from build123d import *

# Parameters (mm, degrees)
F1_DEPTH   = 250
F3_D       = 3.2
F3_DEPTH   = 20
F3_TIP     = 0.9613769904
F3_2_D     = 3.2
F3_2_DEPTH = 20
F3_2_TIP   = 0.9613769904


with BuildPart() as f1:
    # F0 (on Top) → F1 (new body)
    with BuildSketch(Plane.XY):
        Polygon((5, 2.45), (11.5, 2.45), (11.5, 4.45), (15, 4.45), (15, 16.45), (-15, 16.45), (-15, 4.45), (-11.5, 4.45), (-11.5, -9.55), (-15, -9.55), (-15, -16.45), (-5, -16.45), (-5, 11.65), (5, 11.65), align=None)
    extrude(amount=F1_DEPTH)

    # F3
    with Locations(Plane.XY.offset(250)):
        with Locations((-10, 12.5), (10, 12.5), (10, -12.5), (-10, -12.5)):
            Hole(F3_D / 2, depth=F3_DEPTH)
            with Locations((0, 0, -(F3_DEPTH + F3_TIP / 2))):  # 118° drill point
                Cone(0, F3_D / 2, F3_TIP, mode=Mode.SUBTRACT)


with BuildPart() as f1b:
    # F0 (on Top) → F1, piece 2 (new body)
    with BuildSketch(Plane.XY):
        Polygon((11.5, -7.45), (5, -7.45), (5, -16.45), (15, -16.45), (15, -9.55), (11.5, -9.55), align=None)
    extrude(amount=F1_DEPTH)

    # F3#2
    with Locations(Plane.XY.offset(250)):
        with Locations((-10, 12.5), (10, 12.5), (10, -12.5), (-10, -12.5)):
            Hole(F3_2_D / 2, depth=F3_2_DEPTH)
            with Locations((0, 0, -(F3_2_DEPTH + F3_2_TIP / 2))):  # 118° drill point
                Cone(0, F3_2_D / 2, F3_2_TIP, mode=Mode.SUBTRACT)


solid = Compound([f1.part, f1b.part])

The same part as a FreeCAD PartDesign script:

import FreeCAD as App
import Part
import Sketcher
from FreeCAD import Vector

doc = App.newDocument("Part")
body = doc.addObject("PartDesign::Body", "Body")

# Sketch on XY plane
sketch1 = body.newObject("Sketcher::SketchObject", "Sketch")
sketch1.AttachmentSupport = (doc.getObject("XY_Plane"), [""])
sketch1.MapMode = "FlatFace"
sketch1.addGeometry(Part.LineSegment(Vector(5, 2.5, 0), Vector(11.5, 2.5, 0)), False)
sketch1.addGeometry(Part.LineSegment(Vector(11.5, 2.5, 0), Vector(11.5, 4.5, 0)), False)
sketch1.addGeometry(Part.LineSegment(Vector(11.5, 4.5, 0), Vector(15, 4.5, 0)), False)
sketch1.addGeometry(Part.LineSegment(Vector(15, 4.5, 0), Vector(15, 16.4, 0)), False)
sketch1.addGeometry(Part.LineSegment(Vector(15, 16.4, 0), Vector(-15, 16.4, 0)), False)
sketch1.addGeometry(Part.LineSegment(Vector(-15, 16.4, 0), Vector(-15, 4.5, 0)), False)
sketch1.addGeometry(Part.LineSegment(Vector(-15, 4.5, 0), Vector(-11.5, 4.5, 0)), False)
sketch1.addGeometry(Part.LineSegment(Vector(-11.5, 4.5, 0), Vector(-11.5, -9.6, 0)), False)
sketch1.addGeometry(Part.LineSegment(Vector(-11.5, -9.6, 0), Vector(-15, -9.6, 0)), False)
sketch1.addGeometry(Part.LineSegment(Vector(-15, -9.6, 0), Vector(-15, -16.4, 0)), False)
sketch1.addGeometry(Part.LineSegment(Vector(-15, -16.4, 0), Vector(-5, -16.4, 0)), False)
sketch1.addGeometry(Part.LineSegment(Vector(-5, -16.4, 0), Vector(-5, 11.7, 0)), False)
sketch1.addGeometry(Part.LineSegment(Vector(-5, 11.7, 0), Vector(5, 11.7, 0)), False)
sketch1.addGeometry(Part.LineSegment(Vector(5, 11.7, 0), Vector(5, 2.5, 0)), False)
sketch1.addConstraint(Sketcher.Constraint("Coincident", 0, 2, 1, 1))
sketch1.addConstraint(Sketcher.Constraint("Coincident", 1, 2, 2, 1))
sketch1.addConstraint(Sketcher.Constraint("Coincident", 2, 2, 3, 1))
sketch1.addConstraint(Sketcher.Constraint("Coincident", 3, 2, 4, 1))
sketch1.addConstraint(Sketcher.Constraint("Coincident", 4, 2, 5, 1))
sketch1.addConstraint(Sketcher.Constraint("Coincident", 5, 2, 6, 1))
sketch1.addConstraint(Sketcher.Constraint("Coincident", 6, 2, 7, 1))
sketch1.addConstraint(Sketcher.Constraint("Coincident", 7, 2, 8, 1))
sketch1.addConstraint(Sketcher.Constraint("Coincident", 8, 2, 9, 1))
sketch1.addConstraint(Sketcher.Constraint("Coincident", 9, 2, 10, 1))
sketch1.addConstraint(Sketcher.Constraint("Coincident", 10, 2, 11, 1))
sketch1.addConstraint(Sketcher.Constraint("Coincident", 11, 2, 12, 1))
sketch1.addConstraint(Sketcher.Constraint("Coincident", 12, 2, 13, 1))
sketch1.addConstraint(Sketcher.Constraint("Coincident", 13, 2, 0, 1))
sketch1.addConstraint(Sketcher.Constraint("Horizontal", 0))
sketch1.addConstraint(Sketcher.Constraint("Vertical", 1))
sketch1.addConstraint(Sketcher.Constraint("Horizontal", 2))
sketch1.addConstraint(Sketcher.Constraint("Vertical", 3))
sketch1.addConstraint(Sketcher.Constraint("Horizontal", 4))
sketch1.addConstraint(Sketcher.Constraint("Vertical", 5))
sketch1.addConstraint(Sketcher.Constraint("Horizontal", 6))
sketch1.addConstraint(Sketcher.Constraint("Vertical", 7))
sketch1.addConstraint(Sketcher.Constraint("Horizontal", 8))
sketch1.addConstraint(Sketcher.Constraint("Vertical", 9))
sketch1.addConstraint(Sketcher.Constraint("Horizontal", 10))
sketch1.addConstraint(Sketcher.Constraint("Vertical", 11))
sketch1.addConstraint(Sketcher.Constraint("Horizontal", 12))
sketch1.addConstraint(Sketcher.Constraint("Vertical", 13))
sketch1.addConstraint(Sketcher.Constraint("Symmetric", 3, 2, 9, 2, -1, 1))
sketch1.addConstraint(Sketcher.Constraint("Symmetric", 2, 2, 5, 2, -2))
sketch1.addConstraint(Sketcher.Constraint("Equal", 2, 6))
sketch1.addConstraint(Sketcher.Constraint("Equal", 10, 12))
sketch1.addConstraint(Sketcher.Constraint("DistanceX", 4, 2, 4, 1, 30.0))
sketch1.addConstraint(Sketcher.Constraint("DistanceX", 10, 1, 10, 2, 10.0))
sketch1.addConstraint(Sketcher.Constraint("DistanceY", 1, 1, 1, 2, 2.0))
sketch1.addConstraint(Sketcher.Constraint("DistanceY", 3, 1, 3, 2, 12.0))
sketch1.addConstraint(Sketcher.Constraint("DistanceY", 7, 2, 7, 1, 14.0))
sketch1.addConstraint(Sketcher.Constraint("DistanceX", 0, 1, 0, 2, 6.5))
sketch1.addConstraint(Sketcher.Constraint("DistanceY", 9, 2, 9, 1, 6.9))
sketch1.addConstraint(Sketcher.Constraint("DistanceY", 11, 1, 11, 2, 28.1))
pad1 = body.newObject("PartDesign::Pad", "Pad")
pad1.Profile = sketch1
pad1.Length = 250

# Sketch on XY plane
sketch2 = body.newObject("Sketcher::SketchObject", "Sketch001")
sketch2.AttachmentSupport = (doc.getObject("XY_Plane"), [""])
sketch2.MapMode = "FlatFace"
sketch2.AttachmentOffset = App.Placement(Vector(0, 0, 250), App.Rotation())
sketch2.addGeometry(Part.Circle(Vector(-10, 12.5, 0), Vector(0, 0, 1), 1.6), False)
sketch2.addGeometry(Part.Circle(Vector(10, 12.5, 0), Vector(0, 0, 1), 1.6), False)
sketch2.addGeometry(Part.Circle(Vector(10, -12.5, 0), Vector(0, 0, 1), 1.6), False)
sketch2.addGeometry(Part.Circle(Vector(-10, -12.5, 0), Vector(0, 0, 1), 1.6), False)
sketch2.addConstraint(Sketcher.Constraint("Equal", 0, 1))
sketch2.addConstraint(Sketcher.Constraint("Equal", 1, 2))
sketch2.addConstraint(Sketcher.Constraint("Equal", 2, 3))
sketch2.addConstraint(Sketcher.Constraint("Symmetric", 0, 3, 2, 3, -1, 1))
sketch2.addConstraint(Sketcher.Constraint("Symmetric", 1, 3, 3, 3, -1, 1))
sketch2.addConstraint(Sketcher.Constraint("Symmetric", 0, 3, 1, 3, -2))
sketch2.addConstraint(Sketcher.Constraint("Diameter", 0, 3.2))
sketch2.addConstraint(Sketcher.Constraint("DistanceX", 0, 3, -1, 1, 10.0))
sketch2.addConstraint(Sketcher.Constraint("DistanceY", 2, 3, 1, 3, 25.0))
doc.recompute()
hole = body.newObject("PartDesign::Hole", "Hole")
hole.Profile = sketch2
hole.ThreadType = "None"
hole.Diameter = 3.2
hole.DepthType = "Dimension"
hole.Depth = 20
hole.DrillPoint = "Angled"
hole.DrillPointAngle = 118
body2 = doc.addObject("PartDesign::Body", "Body001")

# Sketch on XY plane
sketch3 = body2.newObject("Sketcher::SketchObject", "Sketch002")
sketch3.AttachmentSupport = (doc.getObject("XY_Plane001"), [""])
sketch3.MapMode = "FlatFace"
sketch3.addGeometry(Part.LineSegment(Vector(11.5, -7.5, 0), Vector(5, -7.5, 0)), False)
sketch3.addGeometry(Part.LineSegment(Vector(5, -7.5, 0), Vector(5, -16.4, 0)), False)
sketch3.addGeometry(Part.LineSegment(Vector(5, -16.4, 0), Vector(15, -16.4, 0)), False)
sketch3.addGeometry(Part.LineSegment(Vector(15, -16.4, 0), Vector(15, -9.6, 0)), False)
sketch3.addGeometry(Part.LineSegment(Vector(15, -9.6, 0), Vector(11.5, -9.6, 0)), False)
sketch3.addGeometry(Part.LineSegment(Vector(11.5, -9.6, 0), Vector(11.5, -7.5, 0)), False)
sketch3.addConstraint(Sketcher.Constraint("Coincident", 0, 2, 1, 1))
sketch3.addConstraint(Sketcher.Constraint("Coincident", 1, 2, 2, 1))
sketch3.addConstraint(Sketcher.Constraint("Coincident", 2, 2, 3, 1))
sketch3.addConstraint(Sketcher.Constraint("Coincident", 3, 2, 4, 1))
sketch3.addConstraint(Sketcher.Constraint("Coincident", 4, 2, 5, 1))
sketch3.addConstraint(Sketcher.Constraint("Coincident", 5, 2, 0, 1))
sketch3.addConstraint(Sketcher.Constraint("Horizontal", 0))
sketch3.addConstraint(Sketcher.Constraint("Vertical", 1))
sketch3.addConstraint(Sketcher.Constraint("Horizontal", 2))
sketch3.addConstraint(Sketcher.Constraint("Vertical", 3))
sketch3.addConstraint(Sketcher.Constraint("Horizontal", 4))
sketch3.addConstraint(Sketcher.Constraint("Vertical", 5))
sketch3.addConstraint(Sketcher.Constraint("DistanceX", 2, 1, 2, 2, 10.0))
sketch3.addConstraint(Sketcher.Constraint("DistanceY", 1, 2, 1, 1, 9.0))
sketch3.addConstraint(Sketcher.Constraint("DistanceX", 0, 2, 0, 1, 6.5))
sketch3.addConstraint(Sketcher.Constraint("DistanceY", 3, 1, 3, 2, 6.9))
sketch3.addConstraint(Sketcher.Constraint("DistanceX", -1, 1, 0, 2, 5.0))
sketch3.addConstraint(Sketcher.Constraint("DistanceY", 0, 2, -1, 1, 7.45))
pad2 = body2.newObject("PartDesign::Pad", "Pad001")
pad2.Profile = sketch3
pad2.Length = 250

# Sketch on XY plane
sketch4 = body2.newObject("Sketcher::SketchObject", "Sketch003")
sketch4.AttachmentSupport = (doc.getObject("XY_Plane001"), [""])
sketch4.MapMode = "FlatFace"
sketch4.AttachmentOffset = App.Placement(Vector(0, 0, 250), App.Rotation())
sketch4.addGeometry(Part.Circle(Vector(-10, 12.5, 0), Vector(0, 0, 1), 1.6), False)
sketch4.addGeometry(Part.Circle(Vector(10, 12.5, 0), Vector(0, 0, 1), 1.6), False)
sketch4.addGeometry(Part.Circle(Vector(10, -12.5, 0), Vector(0, 0, 1), 1.6), False)
sketch4.addGeometry(Part.Circle(Vector(-10, -12.5, 0), Vector(0, 0, 1), 1.6), False)
sketch4.addConstraint(Sketcher.Constraint("Equal", 0, 1))
sketch4.addConstraint(Sketcher.Constraint("Equal", 1, 2))
sketch4.addConstraint(Sketcher.Constraint("Equal", 2, 3))
sketch4.addConstraint(Sketcher.Constraint("Symmetric", 0, 3, 2, 3, -1, 1))
sketch4.addConstraint(Sketcher.Constraint("Symmetric", 1, 3, 3, 3, -1, 1))
sketch4.addConstraint(Sketcher.Constraint("Symmetric", 0, 3, 1, 3, -2))
sketch4.addConstraint(Sketcher.Constraint("Diameter", 0, 3.2))
sketch4.addConstraint(Sketcher.Constraint("DistanceX", 0, 3, -1, 1, 10.0))
sketch4.addConstraint(Sketcher.Constraint("DistanceY", 2, 3, 1, 3, 25.0))
doc.recompute()
hole2 = body2.newObject("PartDesign::Hole", "Hole001")
hole2.Profile = sketch4
hole2.ThreadType = "None"
hole2.Diameter = 3.2
hole2.DepthType = "Dimension"
hole2.Depth = 20
hole2.DrillPoint = "Angled"
hole2.DrillPointAngle = 118

doc.recompute()
